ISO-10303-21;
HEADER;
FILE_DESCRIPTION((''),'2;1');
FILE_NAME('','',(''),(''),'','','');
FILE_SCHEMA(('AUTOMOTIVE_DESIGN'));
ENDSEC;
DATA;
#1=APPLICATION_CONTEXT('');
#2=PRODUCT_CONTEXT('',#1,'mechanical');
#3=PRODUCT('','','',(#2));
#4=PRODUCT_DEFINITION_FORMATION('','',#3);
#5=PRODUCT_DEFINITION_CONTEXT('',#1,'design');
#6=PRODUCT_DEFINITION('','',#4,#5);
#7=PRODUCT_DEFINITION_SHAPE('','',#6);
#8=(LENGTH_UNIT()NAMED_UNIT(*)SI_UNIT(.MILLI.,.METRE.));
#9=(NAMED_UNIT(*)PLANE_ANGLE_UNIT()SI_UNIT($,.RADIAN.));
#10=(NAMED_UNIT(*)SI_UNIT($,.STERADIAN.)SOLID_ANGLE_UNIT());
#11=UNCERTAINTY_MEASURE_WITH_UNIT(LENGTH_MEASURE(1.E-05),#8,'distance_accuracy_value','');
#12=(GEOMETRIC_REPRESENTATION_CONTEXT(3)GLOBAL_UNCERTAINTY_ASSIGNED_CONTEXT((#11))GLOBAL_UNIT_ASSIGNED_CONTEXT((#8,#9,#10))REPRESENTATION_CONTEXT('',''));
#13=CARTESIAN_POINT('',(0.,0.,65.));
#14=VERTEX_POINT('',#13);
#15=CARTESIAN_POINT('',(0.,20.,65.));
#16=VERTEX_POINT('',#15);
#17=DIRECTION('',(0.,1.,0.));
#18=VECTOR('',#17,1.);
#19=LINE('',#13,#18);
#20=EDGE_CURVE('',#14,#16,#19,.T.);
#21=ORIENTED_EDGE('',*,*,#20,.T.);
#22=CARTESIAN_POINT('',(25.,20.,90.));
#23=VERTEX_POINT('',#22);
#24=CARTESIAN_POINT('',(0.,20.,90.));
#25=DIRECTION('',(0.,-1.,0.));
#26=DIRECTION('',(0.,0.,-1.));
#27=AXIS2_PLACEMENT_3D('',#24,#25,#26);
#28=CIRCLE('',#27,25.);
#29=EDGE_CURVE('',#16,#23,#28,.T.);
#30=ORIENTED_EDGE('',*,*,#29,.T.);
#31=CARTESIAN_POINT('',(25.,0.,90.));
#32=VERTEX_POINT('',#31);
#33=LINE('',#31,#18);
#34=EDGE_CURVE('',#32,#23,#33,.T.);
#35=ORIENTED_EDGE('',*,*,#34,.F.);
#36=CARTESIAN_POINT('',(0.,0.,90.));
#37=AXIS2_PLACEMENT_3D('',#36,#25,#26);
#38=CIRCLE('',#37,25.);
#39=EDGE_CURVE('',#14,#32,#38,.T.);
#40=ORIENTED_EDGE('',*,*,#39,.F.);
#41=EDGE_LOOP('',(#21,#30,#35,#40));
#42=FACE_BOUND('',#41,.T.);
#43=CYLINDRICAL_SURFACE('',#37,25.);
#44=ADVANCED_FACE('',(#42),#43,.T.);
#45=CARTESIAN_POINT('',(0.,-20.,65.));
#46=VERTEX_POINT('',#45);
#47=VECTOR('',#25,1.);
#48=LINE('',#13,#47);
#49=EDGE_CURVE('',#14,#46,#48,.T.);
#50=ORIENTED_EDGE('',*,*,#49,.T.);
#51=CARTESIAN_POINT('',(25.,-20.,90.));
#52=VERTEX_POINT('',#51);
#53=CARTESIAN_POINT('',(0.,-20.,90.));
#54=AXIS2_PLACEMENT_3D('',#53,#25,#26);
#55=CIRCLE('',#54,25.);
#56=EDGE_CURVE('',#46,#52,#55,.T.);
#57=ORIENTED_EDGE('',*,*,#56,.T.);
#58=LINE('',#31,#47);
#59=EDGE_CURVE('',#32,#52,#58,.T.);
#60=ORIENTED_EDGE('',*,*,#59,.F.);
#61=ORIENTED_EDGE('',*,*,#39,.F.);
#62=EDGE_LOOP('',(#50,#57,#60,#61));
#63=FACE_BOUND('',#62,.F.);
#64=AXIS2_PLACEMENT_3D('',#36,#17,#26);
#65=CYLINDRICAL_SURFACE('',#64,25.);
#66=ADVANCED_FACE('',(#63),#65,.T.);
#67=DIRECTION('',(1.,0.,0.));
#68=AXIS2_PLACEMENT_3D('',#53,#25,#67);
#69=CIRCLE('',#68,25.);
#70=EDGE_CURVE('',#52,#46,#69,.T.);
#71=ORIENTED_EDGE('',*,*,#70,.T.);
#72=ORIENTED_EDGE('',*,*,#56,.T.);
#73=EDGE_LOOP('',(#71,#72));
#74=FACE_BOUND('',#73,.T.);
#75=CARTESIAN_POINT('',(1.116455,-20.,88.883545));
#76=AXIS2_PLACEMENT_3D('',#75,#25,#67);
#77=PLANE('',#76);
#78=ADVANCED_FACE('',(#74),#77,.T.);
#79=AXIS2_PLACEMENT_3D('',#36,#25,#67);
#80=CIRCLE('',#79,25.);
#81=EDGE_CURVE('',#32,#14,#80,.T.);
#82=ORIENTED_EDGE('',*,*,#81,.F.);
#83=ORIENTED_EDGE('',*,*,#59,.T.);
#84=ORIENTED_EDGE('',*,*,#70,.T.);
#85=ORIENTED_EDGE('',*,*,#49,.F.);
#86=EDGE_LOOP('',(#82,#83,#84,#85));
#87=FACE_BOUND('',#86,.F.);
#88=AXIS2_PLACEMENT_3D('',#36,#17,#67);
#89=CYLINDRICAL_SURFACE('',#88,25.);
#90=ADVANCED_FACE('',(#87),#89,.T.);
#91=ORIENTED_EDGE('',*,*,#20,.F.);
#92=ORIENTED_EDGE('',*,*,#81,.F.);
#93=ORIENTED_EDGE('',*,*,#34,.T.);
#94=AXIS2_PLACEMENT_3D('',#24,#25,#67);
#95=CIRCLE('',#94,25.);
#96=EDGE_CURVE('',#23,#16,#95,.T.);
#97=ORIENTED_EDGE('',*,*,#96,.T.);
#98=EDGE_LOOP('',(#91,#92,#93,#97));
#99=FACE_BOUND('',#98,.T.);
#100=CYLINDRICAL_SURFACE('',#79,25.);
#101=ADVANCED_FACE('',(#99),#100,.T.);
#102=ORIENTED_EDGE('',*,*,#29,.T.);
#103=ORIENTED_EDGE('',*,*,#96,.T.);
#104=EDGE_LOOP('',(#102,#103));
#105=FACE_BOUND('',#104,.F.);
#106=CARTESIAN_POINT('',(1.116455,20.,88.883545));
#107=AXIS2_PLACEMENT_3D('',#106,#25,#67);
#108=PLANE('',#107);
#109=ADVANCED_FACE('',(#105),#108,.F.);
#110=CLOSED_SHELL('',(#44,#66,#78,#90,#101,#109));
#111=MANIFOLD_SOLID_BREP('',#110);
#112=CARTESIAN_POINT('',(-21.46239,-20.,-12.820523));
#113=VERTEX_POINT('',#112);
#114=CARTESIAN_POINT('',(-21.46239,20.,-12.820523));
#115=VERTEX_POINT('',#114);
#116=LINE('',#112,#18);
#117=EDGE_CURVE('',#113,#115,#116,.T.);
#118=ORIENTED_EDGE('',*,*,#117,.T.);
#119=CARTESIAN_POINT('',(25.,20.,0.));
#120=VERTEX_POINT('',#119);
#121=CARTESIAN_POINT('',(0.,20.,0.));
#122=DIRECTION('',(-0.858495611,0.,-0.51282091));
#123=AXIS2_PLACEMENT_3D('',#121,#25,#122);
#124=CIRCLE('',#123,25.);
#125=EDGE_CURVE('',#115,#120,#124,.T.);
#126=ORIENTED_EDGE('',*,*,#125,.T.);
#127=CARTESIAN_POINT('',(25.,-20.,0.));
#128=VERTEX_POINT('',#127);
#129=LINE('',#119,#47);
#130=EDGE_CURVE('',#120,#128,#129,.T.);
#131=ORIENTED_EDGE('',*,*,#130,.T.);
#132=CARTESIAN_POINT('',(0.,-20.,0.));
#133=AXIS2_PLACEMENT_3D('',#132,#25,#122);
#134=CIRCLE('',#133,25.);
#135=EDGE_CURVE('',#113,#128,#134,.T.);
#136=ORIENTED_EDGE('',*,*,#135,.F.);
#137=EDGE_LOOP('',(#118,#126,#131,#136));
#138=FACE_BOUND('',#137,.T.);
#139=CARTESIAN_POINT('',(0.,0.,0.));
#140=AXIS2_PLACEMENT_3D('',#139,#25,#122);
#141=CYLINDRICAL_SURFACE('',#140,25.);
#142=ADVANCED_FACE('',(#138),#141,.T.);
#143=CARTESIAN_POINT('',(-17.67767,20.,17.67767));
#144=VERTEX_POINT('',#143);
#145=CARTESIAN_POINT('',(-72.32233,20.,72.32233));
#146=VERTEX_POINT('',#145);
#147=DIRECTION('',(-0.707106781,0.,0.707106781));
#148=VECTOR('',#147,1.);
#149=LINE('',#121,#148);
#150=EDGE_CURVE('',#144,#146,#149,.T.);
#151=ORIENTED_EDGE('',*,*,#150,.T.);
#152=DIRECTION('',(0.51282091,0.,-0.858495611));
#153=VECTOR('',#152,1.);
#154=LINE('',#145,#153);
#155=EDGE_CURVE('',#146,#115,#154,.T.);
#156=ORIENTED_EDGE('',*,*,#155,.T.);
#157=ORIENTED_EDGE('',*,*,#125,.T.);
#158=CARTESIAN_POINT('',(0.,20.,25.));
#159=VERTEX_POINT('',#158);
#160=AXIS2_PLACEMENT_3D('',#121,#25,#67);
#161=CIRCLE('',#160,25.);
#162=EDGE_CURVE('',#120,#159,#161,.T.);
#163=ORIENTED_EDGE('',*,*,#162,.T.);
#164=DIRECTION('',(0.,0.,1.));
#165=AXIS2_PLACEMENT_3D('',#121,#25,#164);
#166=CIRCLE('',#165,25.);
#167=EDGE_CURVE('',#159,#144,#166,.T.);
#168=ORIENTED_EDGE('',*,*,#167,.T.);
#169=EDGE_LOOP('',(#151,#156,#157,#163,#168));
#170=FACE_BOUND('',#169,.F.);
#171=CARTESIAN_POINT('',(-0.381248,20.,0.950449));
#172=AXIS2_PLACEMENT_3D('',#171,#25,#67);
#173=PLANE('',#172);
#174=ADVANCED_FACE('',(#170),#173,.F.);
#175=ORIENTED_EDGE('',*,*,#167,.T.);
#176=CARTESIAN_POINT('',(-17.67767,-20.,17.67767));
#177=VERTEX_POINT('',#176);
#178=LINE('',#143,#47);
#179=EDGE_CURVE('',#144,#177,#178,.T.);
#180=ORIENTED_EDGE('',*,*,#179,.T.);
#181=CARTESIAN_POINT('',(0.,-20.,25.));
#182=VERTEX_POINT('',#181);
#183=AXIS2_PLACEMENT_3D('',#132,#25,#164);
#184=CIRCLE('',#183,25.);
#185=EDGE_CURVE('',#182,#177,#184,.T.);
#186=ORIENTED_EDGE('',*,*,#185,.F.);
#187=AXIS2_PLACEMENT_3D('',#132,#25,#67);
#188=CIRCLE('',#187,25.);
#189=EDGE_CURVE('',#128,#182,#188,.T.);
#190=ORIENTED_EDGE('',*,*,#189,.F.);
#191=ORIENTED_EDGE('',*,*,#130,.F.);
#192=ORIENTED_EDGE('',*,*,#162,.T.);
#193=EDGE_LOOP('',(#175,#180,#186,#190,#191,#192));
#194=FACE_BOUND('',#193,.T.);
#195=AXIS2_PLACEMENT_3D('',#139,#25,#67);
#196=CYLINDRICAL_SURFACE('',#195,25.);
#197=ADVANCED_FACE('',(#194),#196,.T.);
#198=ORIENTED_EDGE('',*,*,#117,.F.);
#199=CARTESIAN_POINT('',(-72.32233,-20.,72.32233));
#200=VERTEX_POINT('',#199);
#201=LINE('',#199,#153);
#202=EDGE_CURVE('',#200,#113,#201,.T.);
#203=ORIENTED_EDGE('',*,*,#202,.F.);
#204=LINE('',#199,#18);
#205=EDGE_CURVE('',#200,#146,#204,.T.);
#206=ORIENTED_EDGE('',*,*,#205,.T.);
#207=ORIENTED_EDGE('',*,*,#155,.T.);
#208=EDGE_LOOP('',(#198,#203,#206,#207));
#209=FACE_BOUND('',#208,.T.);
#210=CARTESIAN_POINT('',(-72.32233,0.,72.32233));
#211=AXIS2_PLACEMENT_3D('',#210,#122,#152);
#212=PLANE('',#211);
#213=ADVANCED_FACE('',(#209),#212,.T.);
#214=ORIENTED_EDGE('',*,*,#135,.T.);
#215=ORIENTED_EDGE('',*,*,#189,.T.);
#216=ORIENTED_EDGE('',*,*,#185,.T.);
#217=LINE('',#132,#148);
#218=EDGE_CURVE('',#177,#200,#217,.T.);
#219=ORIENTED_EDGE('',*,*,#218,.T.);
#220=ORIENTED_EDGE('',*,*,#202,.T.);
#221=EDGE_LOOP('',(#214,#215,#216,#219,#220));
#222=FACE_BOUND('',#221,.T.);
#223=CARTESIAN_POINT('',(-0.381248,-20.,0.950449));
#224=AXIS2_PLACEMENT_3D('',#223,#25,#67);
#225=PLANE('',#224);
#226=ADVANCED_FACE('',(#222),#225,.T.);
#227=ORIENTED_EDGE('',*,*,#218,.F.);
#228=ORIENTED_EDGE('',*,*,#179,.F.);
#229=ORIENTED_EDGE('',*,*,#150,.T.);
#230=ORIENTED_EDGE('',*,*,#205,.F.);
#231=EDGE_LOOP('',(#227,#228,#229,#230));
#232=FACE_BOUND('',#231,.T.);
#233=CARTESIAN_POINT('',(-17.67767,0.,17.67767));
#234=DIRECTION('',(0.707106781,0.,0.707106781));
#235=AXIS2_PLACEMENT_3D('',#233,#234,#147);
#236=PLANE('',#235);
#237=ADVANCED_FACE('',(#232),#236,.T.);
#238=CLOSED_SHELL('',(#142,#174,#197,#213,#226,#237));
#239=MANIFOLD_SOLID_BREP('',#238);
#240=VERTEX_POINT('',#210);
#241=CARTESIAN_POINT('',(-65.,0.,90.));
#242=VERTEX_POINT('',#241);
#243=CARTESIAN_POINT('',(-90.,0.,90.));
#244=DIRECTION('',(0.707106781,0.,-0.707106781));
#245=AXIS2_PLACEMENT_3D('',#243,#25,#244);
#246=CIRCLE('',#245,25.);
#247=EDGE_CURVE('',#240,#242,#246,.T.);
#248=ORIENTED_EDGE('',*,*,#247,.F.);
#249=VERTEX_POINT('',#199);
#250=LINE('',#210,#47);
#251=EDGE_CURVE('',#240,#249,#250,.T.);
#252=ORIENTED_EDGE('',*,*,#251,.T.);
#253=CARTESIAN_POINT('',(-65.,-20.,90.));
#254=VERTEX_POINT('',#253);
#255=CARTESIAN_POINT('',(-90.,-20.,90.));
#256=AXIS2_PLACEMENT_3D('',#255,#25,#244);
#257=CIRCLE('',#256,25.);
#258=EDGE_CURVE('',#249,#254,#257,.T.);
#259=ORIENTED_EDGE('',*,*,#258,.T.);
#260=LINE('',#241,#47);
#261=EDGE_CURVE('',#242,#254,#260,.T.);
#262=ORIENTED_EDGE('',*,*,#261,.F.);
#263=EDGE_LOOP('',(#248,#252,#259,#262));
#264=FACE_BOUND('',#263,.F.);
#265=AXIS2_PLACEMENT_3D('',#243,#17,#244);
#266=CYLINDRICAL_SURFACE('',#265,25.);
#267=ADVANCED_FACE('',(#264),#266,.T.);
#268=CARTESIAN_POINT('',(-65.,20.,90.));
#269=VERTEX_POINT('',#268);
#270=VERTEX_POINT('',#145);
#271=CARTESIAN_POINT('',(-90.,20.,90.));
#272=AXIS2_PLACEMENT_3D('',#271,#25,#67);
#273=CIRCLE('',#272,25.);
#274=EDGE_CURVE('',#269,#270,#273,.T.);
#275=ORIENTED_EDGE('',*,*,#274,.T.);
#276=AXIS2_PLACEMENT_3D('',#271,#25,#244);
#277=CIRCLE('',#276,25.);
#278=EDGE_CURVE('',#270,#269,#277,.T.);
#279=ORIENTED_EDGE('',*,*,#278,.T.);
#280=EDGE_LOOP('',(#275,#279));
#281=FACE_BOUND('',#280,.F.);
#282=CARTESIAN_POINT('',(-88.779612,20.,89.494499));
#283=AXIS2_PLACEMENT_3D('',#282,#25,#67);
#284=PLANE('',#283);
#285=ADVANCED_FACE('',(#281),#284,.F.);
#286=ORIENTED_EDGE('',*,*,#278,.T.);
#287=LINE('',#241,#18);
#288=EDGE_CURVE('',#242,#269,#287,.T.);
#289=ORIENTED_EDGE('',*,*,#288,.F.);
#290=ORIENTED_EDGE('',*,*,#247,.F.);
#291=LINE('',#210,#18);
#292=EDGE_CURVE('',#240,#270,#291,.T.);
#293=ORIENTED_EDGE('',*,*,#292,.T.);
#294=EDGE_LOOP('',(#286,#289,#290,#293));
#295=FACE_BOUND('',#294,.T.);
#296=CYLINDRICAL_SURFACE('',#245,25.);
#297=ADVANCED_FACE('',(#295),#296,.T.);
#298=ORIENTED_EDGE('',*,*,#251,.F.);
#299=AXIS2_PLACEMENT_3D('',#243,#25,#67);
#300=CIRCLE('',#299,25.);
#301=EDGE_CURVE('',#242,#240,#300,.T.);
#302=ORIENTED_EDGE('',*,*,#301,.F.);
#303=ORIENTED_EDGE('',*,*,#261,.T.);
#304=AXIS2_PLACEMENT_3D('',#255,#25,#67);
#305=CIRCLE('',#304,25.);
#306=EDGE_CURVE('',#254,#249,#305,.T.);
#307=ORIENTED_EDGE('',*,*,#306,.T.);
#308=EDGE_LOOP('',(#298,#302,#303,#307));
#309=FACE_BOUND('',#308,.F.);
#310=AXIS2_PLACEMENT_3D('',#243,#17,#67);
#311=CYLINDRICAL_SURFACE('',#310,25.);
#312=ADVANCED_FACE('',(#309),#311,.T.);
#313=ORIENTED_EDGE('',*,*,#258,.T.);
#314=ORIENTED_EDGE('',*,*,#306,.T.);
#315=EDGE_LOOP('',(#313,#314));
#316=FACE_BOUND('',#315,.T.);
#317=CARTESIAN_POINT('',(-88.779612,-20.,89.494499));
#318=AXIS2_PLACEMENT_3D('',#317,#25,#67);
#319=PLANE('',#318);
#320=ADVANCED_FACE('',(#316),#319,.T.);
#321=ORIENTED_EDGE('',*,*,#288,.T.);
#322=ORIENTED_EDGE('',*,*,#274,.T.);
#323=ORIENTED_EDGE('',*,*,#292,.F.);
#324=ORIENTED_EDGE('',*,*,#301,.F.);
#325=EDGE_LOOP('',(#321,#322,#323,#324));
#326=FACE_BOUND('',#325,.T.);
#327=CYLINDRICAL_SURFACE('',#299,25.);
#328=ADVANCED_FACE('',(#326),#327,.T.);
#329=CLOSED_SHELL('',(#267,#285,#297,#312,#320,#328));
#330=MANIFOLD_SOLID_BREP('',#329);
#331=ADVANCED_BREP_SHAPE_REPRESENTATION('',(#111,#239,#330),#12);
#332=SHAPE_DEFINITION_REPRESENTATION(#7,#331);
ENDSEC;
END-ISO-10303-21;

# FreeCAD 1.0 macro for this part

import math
import FreeCAD as App
import Part
import Sketcher
from FreeCAD import Vector
Q = App.Units.Quantity

doc = App.newDocument("Part")
params = doc.addObject("Spreadsheet::Sheet", "Params")
for row, (alias, value) in enumerate([
    ("sketch1_radius", "25 mm"),
    ("pad1_length", "40 mm"),
    ("sketch2_radius", "25 mm"),
    ("pad2_length", "40 mm"),
    ("sketch3_radius", "25 mm"),
    ("pad3_length", "40 mm"),
], start=1):
    params.set(f"A{row}", alias)
    params.set(f"B{row}", "=" + value)
    params.setAlias(f"B{row}", alias)

body = doc.addObject("PartDesign::Body", "Body")

# Sketch on XZ plane
sketch1 = doc.addObject("Sketcher::SketchObject", "Sketch")
body.addObject(sketch1)
sketch1.AttachmentSupport = (doc.XZ_Plane, [""])
sketch1.MapMode = "FlatFace"
sketch1.addGeometry(Part.ArcOfCircle(Part.Circle(Vector(0, 0, 0), Vector(0, 0, 1), 25), math.radians(-149), math.radians(0)), False)
sketch1.addGeometry(Part.ArcOfCircle(Part.Circle(Vector(0, 0, 0), Vector(0, 0, 1), 25), math.radians(0), math.radians(90)), False)
sketch1.addGeometry(Part.ArcOfCircle(Part.Circle(Vector(0, 0, 0), Vector(0, 0, 1), 25), math.radians(90), math.radians(135)), False)
sketch1.addGeometry(Part.LineSegment(Vector(-18, 18, 0), Vector(-72, 72, 0)), False)
sketch1.addGeometry(Part.LineSegment(Vector(-72, 72, 0), Vector(-21, -13, 0)), False)
sketch1.addConstraint(Sketcher.Constraint("Tangent", 0, 2, 1, 1))
sketch1.addConstraint(Sketcher.Constraint("Tangent", 1, 2, 2, 1))
sketch1.addConstraint(Sketcher.Constraint("Coincident", 2, 2, 3, 1))
sketch1.addConstraint(Sketcher.Constraint("Coincident", 3, 2, 4, 1))
sketch1.addConstraint(Sketcher.Constraint("Tangent", 4, 2, 0, 1))
sketch1.addConstraint(Sketcher.Constraint("Coincident", 0, 3, -1, 1))
sketch1.addConstraint(Sketcher.Constraint("Coincident", 2, 3, -1, 1))
sketch1.addConstraint(Sketcher.Constraint("PointOnObject", 0, 2, -1))
sketch1.addConstraint(Sketcher.Constraint("PointOnObject", 1, 2, -2))
sketch1.addConstraint(Sketcher.Constraint("Radius", 0, 25.0))
sketch1.addConstraint(Sketcher.Constraint("Angle", 3, Q("135 deg")))
sketch1.addConstraint(Sketcher.Constraint("Distance", 3, 77.279221))
sketch1.addConstraint(Sketcher.Constraint("DistanceX", 2, 2, -1, 1, 17.67767))
sketch1.setExpression("Constraints[9]", "Params.sketch1_radius")
pad1 = doc.addObject("PartDesign::Pad", "Pad")
body.addObject(pad1)
pad1.Profile = sketch1
pad1.setExpression("Length", "Params.pad1_length")
pad1.Midplane = True
body2 = doc.addObject("PartDesign::Body", "Body001")

# Sketch on XZ plane
sketch2 = doc.addObject("Sketcher::SketchObject", "Sketch001")
body2.addObject(sketch2)
sketch2.AttachmentSupport = (doc.getObject("XZ_Plane001"), [""])
sketch2.MapMode = "FlatFace"
sketch2.addGeometry(Part.ArcOfCircle(Part.Circle(Vector(-90, 90, 0), Vector(0, 0, 1), 25), math.radians(0), math.radians(315)), False)
sketch2.addGeometry(Part.ArcOfCircle(Part.Circle(Vector(-90, 90, 0), Vector(0, 0, 1), 25), math.radians(-45), math.radians(0)), False)
sketch2.addConstraint(Sketcher.Constraint("Tangent", 0, 1, 1, 2))
sketch2.addConstraint(Sketcher.Constraint("Coincident", 1, 1, 0, 2))
sketch2.addConstraint(Sketcher.Constraint("Horizontal", 1, 3, 0, 1))
sketch2.addConstraint(Sketcher.Constraint("Radius", 0, 25.0))
sketch2.addConstraint(Sketcher.Constraint("DistanceX", 0, 3, -1, 1, 90.0))
sketch2.addConstraint(Sketcher.Constraint("DistanceY", -1, 1, 0, 3, 90.0))
sketch2.addConstraint(Sketcher.Constraint("DistanceX", 1, 1, -1, 1, 72.32233))
sketch2.setExpression("Constraints[3]", "Params.sketch2_radius")
pad2 = doc.addObject("PartDesign::Pad", "Pad001")
body2.addObject(pad2)
pad2.Profile = sketch2
pad2.setExpression("Length", "Params.pad2_length")
pad2.Midplane = True
body3 = doc.addObject("PartDesign::Body", "Body002")

# Sketch on XZ plane
sketch3 = doc.addObject("Sketcher::SketchObject", "Sketch002")
body3.addObject(sketch3)
sketch3.AttachmentSupport = (doc.getObject("XZ_Plane002"), [""])
sketch3.MapMode = "FlatFace"
sketch3.addGeometry(Part.ArcOfCircle(Part.Circle(Vector(0, 90, 0), Vector(0, 0, 1), 25), math.radians(0), math.radians(270)), False)
sketch3.addGeometry(Part.ArcOfCircle(Part.Circle(Vector(0, 90, 0), Vector(0, 0, 1), 25), math.radians(-90), math.radians(0)), False)
sketch3.addConstraint(Sketcher.Constraint("Tangent", 0, 1, 1, 2))
sketch3.addConstraint(Sketcher.Constraint("Coincident", 1, 1, 0, 2))
sketch3.addConstraint(Sketcher.Constraint("PointOnObject", 0, 3, -2))
sketch3.addConstraint(Sketcher.Constraint("PointOnObject", 1, 1, -2))
sketch3.addConstraint(Sketcher.Constraint("Horizontal", 1, 3, 0, 1))
sketch3.addConstraint(Sketcher.Constraint("Radius", 0, 25.0))
sketch3.addConstraint(Sketcher.Constraint("DistanceY", -1, 1, 0, 3, 90.0))
sketch3.setExpression("Constraints[5]", "Params.sketch3_radius")
pad3 = doc.addObject("PartDesign::Pad", "Pad002")
body3.addObject(pad3)
pad3.Profile = sketch3
pad3.setExpression("Length", "Params.pad3_length")
pad3.Midplane = True

doc.recompute()
